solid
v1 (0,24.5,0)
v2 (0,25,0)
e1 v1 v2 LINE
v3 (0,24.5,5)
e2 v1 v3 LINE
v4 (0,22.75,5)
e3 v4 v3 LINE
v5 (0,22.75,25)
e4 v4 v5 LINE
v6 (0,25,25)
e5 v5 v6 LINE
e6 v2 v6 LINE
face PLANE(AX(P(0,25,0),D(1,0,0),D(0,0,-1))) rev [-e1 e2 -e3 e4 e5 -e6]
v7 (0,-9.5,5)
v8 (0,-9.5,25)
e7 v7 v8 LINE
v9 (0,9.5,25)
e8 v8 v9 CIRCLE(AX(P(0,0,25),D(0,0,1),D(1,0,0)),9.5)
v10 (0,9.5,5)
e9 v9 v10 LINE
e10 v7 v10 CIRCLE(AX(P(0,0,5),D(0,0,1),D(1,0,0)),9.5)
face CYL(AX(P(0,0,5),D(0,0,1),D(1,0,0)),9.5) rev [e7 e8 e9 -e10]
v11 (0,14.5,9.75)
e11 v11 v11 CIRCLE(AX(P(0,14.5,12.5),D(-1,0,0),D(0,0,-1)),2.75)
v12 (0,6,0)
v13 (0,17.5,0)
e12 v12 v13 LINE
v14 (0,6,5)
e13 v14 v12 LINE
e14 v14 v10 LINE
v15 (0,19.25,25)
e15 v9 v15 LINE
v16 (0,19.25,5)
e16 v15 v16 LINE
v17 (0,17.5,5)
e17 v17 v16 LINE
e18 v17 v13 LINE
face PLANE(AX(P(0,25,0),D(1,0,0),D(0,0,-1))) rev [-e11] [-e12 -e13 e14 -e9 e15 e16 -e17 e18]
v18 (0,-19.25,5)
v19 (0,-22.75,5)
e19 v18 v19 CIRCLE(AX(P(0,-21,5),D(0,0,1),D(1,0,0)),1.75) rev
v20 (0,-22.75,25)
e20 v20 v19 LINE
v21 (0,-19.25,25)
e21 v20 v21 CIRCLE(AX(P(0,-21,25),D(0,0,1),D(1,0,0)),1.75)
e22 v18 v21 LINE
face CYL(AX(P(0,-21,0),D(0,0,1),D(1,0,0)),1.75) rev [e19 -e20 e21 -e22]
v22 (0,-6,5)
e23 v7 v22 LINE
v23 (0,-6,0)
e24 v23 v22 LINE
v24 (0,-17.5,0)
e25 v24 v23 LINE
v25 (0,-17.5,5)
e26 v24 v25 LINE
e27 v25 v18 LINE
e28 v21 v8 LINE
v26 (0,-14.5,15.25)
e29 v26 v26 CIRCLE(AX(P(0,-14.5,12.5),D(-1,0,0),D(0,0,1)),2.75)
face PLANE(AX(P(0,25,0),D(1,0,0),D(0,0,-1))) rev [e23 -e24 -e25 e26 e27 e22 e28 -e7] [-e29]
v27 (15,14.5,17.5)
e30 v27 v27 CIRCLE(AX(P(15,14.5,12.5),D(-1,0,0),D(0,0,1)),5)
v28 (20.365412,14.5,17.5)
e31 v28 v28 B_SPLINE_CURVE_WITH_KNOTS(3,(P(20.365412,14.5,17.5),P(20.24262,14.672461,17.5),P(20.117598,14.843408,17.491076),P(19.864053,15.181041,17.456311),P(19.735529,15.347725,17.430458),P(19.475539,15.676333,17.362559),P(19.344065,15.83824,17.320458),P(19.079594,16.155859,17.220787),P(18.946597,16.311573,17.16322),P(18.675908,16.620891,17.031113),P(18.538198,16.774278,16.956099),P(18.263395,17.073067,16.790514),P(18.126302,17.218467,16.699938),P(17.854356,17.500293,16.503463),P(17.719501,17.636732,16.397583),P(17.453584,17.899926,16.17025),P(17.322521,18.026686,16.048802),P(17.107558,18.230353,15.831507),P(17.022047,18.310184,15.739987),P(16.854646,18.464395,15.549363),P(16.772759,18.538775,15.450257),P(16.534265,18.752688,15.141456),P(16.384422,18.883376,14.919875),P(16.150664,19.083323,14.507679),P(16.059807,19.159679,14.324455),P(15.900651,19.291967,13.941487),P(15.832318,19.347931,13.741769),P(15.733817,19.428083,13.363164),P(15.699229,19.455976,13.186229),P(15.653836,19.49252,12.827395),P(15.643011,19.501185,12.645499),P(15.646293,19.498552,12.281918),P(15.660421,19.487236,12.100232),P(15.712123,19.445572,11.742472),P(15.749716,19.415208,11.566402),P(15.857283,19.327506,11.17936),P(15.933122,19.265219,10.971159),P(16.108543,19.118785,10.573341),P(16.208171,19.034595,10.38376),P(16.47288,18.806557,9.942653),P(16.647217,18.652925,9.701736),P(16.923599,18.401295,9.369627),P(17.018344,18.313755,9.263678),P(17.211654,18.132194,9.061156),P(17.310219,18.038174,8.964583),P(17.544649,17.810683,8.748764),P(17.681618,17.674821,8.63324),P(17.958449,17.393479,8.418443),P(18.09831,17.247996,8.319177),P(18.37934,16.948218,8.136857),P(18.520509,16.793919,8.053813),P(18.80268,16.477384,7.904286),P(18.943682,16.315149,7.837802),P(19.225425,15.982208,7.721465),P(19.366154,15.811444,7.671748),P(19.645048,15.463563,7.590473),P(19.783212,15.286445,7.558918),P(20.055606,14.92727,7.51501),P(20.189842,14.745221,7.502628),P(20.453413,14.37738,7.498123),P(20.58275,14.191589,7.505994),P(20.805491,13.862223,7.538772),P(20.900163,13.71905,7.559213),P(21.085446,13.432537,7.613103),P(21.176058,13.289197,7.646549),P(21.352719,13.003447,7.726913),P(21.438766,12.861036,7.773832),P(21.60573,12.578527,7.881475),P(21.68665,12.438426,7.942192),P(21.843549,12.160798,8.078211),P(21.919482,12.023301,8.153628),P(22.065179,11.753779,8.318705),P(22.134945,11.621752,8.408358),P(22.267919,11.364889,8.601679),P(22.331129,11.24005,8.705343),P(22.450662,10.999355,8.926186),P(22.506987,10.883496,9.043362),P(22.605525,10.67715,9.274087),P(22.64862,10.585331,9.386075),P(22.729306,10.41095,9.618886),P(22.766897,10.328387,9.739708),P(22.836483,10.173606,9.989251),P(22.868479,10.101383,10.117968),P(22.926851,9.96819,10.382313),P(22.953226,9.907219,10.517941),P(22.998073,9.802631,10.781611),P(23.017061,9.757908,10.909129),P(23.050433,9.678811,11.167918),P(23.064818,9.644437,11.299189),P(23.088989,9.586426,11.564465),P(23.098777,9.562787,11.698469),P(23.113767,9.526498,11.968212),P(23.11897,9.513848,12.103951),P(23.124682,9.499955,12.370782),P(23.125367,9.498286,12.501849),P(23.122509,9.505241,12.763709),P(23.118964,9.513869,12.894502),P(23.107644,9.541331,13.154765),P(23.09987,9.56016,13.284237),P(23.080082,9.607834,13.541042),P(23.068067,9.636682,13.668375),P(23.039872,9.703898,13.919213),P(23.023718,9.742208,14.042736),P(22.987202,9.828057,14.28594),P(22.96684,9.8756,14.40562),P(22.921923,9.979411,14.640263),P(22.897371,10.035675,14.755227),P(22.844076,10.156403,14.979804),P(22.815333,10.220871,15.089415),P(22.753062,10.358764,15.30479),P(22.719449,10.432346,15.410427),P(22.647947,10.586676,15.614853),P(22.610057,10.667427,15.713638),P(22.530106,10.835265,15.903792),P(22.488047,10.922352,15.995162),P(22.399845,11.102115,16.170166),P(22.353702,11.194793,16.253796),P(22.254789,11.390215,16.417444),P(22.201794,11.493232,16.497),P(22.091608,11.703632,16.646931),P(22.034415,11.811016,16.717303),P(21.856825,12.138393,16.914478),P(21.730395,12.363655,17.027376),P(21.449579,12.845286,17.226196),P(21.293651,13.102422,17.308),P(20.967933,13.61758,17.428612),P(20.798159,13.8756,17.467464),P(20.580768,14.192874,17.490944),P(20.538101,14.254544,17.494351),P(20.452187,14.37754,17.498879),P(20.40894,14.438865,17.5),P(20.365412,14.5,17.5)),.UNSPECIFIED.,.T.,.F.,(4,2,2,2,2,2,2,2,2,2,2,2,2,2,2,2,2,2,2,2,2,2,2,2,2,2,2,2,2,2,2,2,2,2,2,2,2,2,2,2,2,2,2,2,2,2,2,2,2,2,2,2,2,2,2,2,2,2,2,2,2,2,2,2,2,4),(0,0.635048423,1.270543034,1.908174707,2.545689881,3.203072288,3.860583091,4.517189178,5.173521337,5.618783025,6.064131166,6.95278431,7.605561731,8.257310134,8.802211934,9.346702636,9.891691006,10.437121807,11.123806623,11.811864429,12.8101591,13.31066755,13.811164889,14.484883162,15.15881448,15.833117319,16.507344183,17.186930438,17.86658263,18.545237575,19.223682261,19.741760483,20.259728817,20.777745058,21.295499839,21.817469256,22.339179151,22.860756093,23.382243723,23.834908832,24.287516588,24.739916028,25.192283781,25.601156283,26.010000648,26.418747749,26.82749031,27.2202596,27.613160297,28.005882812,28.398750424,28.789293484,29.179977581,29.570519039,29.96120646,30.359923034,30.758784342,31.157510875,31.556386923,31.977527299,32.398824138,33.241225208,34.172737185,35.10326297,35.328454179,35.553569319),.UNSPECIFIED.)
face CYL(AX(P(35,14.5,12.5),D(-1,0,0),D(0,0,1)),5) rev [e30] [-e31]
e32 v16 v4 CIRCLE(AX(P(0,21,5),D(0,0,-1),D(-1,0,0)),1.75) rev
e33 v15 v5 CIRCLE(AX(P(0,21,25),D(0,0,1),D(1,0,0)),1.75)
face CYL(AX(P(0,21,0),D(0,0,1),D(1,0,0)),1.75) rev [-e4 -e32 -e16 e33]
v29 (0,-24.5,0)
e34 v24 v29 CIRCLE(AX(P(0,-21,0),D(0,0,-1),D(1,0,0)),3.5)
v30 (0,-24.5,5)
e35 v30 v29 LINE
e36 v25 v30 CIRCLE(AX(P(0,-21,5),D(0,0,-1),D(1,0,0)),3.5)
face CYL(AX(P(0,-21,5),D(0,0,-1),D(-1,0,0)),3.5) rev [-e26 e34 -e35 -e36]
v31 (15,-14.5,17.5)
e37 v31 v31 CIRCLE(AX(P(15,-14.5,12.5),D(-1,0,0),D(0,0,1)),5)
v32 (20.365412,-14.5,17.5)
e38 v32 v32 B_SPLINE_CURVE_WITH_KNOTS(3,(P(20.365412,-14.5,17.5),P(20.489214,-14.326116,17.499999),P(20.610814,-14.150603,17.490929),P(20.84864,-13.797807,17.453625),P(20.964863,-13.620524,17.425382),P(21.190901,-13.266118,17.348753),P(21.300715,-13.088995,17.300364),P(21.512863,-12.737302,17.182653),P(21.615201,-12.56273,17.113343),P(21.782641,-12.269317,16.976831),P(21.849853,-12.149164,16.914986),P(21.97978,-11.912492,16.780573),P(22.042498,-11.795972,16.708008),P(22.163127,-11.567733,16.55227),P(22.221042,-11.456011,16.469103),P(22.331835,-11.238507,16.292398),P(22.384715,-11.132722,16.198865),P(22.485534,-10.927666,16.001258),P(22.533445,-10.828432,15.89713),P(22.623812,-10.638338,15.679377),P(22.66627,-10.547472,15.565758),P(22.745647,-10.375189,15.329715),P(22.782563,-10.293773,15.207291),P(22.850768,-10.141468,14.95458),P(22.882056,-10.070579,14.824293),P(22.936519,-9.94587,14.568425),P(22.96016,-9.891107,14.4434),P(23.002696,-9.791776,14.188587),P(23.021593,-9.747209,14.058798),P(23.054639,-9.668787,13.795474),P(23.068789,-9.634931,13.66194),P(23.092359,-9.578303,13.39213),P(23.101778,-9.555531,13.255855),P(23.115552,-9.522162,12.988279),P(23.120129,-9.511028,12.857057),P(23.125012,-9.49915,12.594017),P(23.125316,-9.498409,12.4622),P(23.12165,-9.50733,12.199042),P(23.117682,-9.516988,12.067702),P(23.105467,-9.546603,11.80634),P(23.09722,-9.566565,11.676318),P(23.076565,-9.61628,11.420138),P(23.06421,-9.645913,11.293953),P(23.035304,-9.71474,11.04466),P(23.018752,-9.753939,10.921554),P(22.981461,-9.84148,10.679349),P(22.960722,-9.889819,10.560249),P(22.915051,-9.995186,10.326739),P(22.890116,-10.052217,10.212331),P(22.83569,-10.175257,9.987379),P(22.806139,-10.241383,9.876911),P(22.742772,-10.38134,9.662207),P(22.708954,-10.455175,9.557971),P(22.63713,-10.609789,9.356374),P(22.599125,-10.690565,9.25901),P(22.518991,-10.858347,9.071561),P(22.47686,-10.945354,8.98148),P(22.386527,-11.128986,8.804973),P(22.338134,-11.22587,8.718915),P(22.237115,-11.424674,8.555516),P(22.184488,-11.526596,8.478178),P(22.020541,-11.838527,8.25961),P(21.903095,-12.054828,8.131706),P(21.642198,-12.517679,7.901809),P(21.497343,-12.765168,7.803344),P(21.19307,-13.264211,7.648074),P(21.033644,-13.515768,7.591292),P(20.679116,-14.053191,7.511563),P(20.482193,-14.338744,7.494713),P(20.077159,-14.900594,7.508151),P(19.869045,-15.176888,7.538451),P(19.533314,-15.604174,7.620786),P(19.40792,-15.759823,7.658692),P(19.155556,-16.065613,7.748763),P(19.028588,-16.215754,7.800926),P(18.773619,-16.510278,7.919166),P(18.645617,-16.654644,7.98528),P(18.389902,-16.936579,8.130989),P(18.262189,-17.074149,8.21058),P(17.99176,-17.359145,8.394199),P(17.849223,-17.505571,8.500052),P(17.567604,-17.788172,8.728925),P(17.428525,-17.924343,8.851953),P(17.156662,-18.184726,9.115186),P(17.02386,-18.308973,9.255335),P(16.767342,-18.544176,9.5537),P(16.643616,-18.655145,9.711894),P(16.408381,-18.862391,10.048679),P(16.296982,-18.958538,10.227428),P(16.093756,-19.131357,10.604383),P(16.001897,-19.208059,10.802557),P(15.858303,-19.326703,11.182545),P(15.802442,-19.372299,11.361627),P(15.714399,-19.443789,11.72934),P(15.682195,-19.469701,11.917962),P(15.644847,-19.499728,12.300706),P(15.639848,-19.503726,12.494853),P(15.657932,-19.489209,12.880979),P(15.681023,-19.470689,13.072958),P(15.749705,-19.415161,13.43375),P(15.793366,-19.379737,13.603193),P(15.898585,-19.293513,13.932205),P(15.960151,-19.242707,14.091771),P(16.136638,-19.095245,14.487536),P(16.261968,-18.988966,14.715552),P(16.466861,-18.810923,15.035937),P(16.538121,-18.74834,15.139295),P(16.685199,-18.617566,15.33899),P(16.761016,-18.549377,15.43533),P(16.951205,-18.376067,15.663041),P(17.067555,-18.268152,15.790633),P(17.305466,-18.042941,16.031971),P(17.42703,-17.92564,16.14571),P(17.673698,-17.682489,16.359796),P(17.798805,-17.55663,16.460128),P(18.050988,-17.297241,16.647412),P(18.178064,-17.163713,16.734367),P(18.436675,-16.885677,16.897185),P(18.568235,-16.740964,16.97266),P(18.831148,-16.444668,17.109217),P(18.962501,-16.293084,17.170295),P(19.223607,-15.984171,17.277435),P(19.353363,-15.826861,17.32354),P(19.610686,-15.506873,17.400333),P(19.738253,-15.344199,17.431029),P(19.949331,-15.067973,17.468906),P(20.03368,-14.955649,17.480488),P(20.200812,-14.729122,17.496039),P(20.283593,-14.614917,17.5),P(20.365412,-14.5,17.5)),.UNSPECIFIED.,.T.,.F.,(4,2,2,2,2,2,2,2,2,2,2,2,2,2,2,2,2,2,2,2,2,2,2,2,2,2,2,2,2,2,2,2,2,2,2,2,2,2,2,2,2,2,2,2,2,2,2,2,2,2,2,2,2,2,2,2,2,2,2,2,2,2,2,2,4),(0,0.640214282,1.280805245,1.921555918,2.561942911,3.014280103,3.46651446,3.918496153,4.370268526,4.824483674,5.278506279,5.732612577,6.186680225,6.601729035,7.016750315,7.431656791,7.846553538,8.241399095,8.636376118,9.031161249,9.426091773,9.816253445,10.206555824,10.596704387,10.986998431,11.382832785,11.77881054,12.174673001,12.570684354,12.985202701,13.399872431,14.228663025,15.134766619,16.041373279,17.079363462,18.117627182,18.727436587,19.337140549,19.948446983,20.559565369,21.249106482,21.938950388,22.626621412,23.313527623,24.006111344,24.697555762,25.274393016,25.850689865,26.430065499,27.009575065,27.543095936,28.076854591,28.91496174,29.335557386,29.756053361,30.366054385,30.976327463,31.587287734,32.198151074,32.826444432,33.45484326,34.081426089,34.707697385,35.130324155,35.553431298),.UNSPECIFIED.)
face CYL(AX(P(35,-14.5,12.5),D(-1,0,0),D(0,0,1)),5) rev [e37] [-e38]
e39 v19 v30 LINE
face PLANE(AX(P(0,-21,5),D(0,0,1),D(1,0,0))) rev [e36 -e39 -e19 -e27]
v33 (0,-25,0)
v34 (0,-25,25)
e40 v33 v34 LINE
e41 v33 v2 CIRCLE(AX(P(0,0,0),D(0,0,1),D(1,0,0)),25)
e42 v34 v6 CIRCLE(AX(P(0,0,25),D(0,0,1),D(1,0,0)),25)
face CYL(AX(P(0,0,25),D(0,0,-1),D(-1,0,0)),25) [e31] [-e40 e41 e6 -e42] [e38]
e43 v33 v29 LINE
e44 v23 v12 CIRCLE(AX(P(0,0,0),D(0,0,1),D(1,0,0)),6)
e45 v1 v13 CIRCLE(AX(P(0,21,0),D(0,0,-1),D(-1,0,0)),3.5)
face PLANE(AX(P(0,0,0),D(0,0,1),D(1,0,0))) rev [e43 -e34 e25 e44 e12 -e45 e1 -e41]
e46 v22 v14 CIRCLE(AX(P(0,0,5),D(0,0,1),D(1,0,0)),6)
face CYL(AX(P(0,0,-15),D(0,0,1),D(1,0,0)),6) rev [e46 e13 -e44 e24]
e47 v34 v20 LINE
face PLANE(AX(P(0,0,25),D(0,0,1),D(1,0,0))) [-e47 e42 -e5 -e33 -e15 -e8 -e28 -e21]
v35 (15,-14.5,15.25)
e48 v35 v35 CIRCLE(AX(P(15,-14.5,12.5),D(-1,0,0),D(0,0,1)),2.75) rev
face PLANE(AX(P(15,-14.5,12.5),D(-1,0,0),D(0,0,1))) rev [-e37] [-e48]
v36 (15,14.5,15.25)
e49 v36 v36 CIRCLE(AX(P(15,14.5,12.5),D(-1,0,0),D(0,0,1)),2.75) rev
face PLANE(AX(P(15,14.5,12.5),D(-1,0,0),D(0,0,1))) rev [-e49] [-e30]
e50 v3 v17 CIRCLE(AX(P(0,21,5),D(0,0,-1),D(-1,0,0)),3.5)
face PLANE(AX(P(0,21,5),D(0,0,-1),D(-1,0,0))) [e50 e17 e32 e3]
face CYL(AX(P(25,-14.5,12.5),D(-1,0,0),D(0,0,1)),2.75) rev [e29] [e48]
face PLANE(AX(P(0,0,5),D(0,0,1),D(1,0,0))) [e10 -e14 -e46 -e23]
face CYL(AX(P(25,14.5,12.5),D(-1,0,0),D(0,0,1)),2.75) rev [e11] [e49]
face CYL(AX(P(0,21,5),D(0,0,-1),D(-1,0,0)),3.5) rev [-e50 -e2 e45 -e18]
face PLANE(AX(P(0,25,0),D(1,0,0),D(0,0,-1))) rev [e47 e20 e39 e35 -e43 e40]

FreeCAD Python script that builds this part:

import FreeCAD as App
import Part
import Sketcher
Q = App.Units.Quantity

doc = App.newDocument("Part")
body = doc.addObject("PartDesign::Body", "Body")

# Sketch on XY plane
sketch1 = doc.addObject("Sketcher::SketchObject", "Sketch")
body.addObject(sketch1)
sketch1.AttachmentSupport = (doc.XY_Plane, [""])
sketch1.MapMode = "FlatFace"
sketch1.addGeometry(Part.Circle(App.Vector(0, 0, 0), App.Vector(0, 0, 1), 25), False)
sketch1.addConstraint([
    Sketcher.Constraint("Coincident", 0, 3, -1, 1),
    Sketcher.Constraint("Diameter", 0, Q("50 mm")),
])
pad1 = doc.addObject("PartDesign::Pad", "Pad")
body.addObject(pad1)
pad1.Profile = sketch1
pad1.Length = 25

# Sketch on XY plane
sketch2 = doc.addObject("Sketcher::SketchObject", "Sketch001")
body.addObject(sketch2)
sketch2.AttachmentSupport = (doc.XY_Plane, [""])
sketch2.MapMode = "FlatFace"
sketch2.AttachmentOffset = App.Placement(App.Vector(0, 0, 25), App.Rotation())
sketch2.addGeometry(Part.Circle(App.Vector(0, 0, 0), App.Vector(0, 0, 1), 10), False)
sketch2.addConstraint([
    Sketcher.Constraint("Coincident", 0, 3, -1, 1),
    Sketcher.Constraint("Diameter", 0, Q("19 mm")),
])
pocket1 = doc.addObject("PartDesign::Pocket", "Pocket")
body.addObject(pocket1)
pocket1.Profile = sketch2
pocket1.Length = 20

# Sketch on XY plane
sketch3 = doc.addObject("Sketcher::SketchObject", "Sketch002")
body.addObject(sketch3)
sketch3.AttachmentSupport = (doc.XY_Plane, [""])
sketch3.MapMode = "FlatFace"
sketch3.AttachmentOffset = App.Placement(App.Vector(0, 0, 5), App.Rotation())
sketch3.addGeometry(Part.Circle(App.Vector(0, 0, 0), App.Vector(0, 0, 1), 6), False)
sketch3.addConstraint([
    Sketcher.Constraint("Coincident", 0, 3, -1, 1),
    Sketcher.Constraint("Diameter", 0, Q("12 mm")),
])
pocket2 = doc.addObject("PartDesign::Pocket", "Pocket001")
body.addObject(pocket2)
pocket2.Profile = sketch3
pocket2.Length = 20

# Sketch on XY plane
sketch4 = doc.addObject("Sketcher::SketchObject", "Sketch003")
body.addObject(sketch4)
sketch4.AttachmentSupport = (doc.XY_Plane, [""])
sketch4.MapMode = "FlatFace"
sketch4.AttachmentOffset = App.Placement(App.Vector(0, 0, 25), App.Rotation())
sketch4.addGeometry([
    Part.LineSegment(App.Vector(-32, 25, 0), App.Vector(-32, -25, 0)),
    Part.LineSegment(App.Vector(-32, -25, 0), App.Vector(0, -25, 0)),
    Part.LineSegment(App.Vector(0, -25, 0), App.Vector(0, 25, 0)),
    Part.LineSegment(App.Vector(0, 25, 0), App.Vector(-32, 25, 0)),
], False)
sketch4.addConstraint([
    Sketcher.Constraint("Coincident", 0, 2, 1, 1),
    Sketcher.Constraint("Coincident", 1, 2, 2, 1),
    Sketcher.Constraint("Coincident", 2, 2, 3, 1),
    Sketcher.Constraint("Coincident", 3, 2, 0, 1),
    Sketcher.Constraint("Vertical", 0),
    Sketcher.Constraint("Horizontal", 1),
    Sketcher.Constraint("Vertical", 2),
    Sketcher.Constraint("Horizontal", 3),
    Sketcher.Constraint("Symmetric", 1, 2, 2, 2, -1, 1),
    Sketcher.Constraint("DistanceY", 0, 2, 0, 1, Q("50 mm")),
    Sketcher.Constraint("DistanceX", 1, 1, 1, 2, Q("31.902568 mm")),
])
pocket3 = doc.addObject("PartDesign::Pocket", "Pocket002")
body.addObject(pocket3)
pocket3.Profile = sketch4
pocket3.Type = "ThroughAll"

# Sketch on YZ plane
sketch5 = doc.addObject("Sketcher::SketchObject", "Sketch004")
body.addObject(sketch5)
sketch5.AttachmentSupport = (doc.YZ_Plane, [""])
sketch5.MapMode = "FlatFace"
sketch5.addGeometry([
    Part.Circle(App.Vector(-14.5, 12.5, 0), App.Vector(0, 0, 1), 2.8),
    Part.Circle(App.Vector(14.5, 12.5, 0), App.Vector(0, 0, 1), 2.8),
], False)
sketch5.addConstraint([
    Sketcher.Constraint("Equal", 0, 1),
    Sketcher.Constraint("Symmetric", 0, 3, 1, 3, -2),
    Sketcher.Constraint("Diameter", 0, Q("5.5 mm")),
    Sketcher.Constraint("DistanceX", 0, 3, 1, 3, Q("29 mm")),
    Sketcher.Constraint("DistanceY", -1, 1, 0, 3, Q("12.5 mm")),
])
pocket4 = doc.addObject("PartDesign::Pocket", "Pocket003")
body.addObject(pocket4)
pocket4.Profile = sketch5
pocket4.Type = "ThroughAll"
pocket4.Reversed = True

# Sketch on YZ plane
sketch6 = doc.addObject("Sketcher::SketchObject", "Sketch005")
body.addObject(sketch6)
sketch6.AttachmentSupport = (doc.YZ_Plane, [""])
sketch6.MapMode = "FlatFace"
sketch6.AttachmentOffset = App.Placement(App.Vector(0, 0, 15), App.Rotation())
sketch6.addGeometry([
    Part.Circle(App.Vector(14, 12, 0), App.Vector(0, 0, 1), 5),
    Part.Circle(App.Vector(-14, 12, 0), App.Vector(0, 0, 1), 5),
], False)
sketch6.addConstraint([
    Sketcher.Constraint("Equal", 0, 1),
    Sketcher.Constraint("Symmetric", 0, 3, 1, 3, -2),
    Sketcher.Constraint("Diameter", 0, Q("10 mm")),
    Sketcher.Constraint("DistanceX", 1, 3, 0, 3, Q("29 mm")),
    Sketcher.Constraint("DistanceY", -1, 1, 0, 3, Q("12.5 mm")),
])
pocket5 = doc.addObject("PartDesign::Pocket", "Pocket004")
body.addObject(pocket5)
pocket5.Profile = sketch6
pocket5.Length = 20
pocket5.Reversed = True

# Sketch on XY plane
sketch7 = doc.addObject("Sketcher::SketchObject", "Sketch006")
body.addObject(sketch7)
sketch7.AttachmentSupport = (doc.XY_Plane, [""])
sketch7.MapMode = "FlatFace"
sketch7.AttachmentOffset = App.Placement(App.Vector(0, 0, 25), App.Rotation())
sketch7.addGeometry([
    Part.Circle(App.Vector(0, 21, 0), App.Vector(0, 0, 1), 1.8),
    Part.Circle(App.Vector(0, -21, 0), App.Vector(0, 0, 1), 1.8),
], False)
sketch7.addConstraint([
    Sketcher.Constraint("Equal", 0, 1),
    Sketcher.Constraint("Symmetric", 0, 3, 1, 3, -1, 1),
    Sketcher.Constraint("PointOnObject", 0, 3, -2),
    Sketcher.Constraint("Diameter", 0, Q("3.5 mm")),
    Sketcher.Constraint("DistanceY", -1, 1, 0, 3, Q("21 mm")),
])
pocket6 = doc.addObject("PartDesign::Pocket", "Pocket005")
body.addObject(pocket6)
pocket6.Profile = sketch7
pocket6.Type = "ThroughAll"

# Sketch on XY plane
sketch8 = doc.addObject("Sketcher::SketchObject", "Sketch007")
body.addObject(sketch8)
sketch8.AttachmentSupport = (doc.XY_Plane, [""])
sketch8.MapMode = "FlatFace"
sketch8.addGeometry([
    Part.Circle(App.Vector(0, 21, 0), App.Vector(0, 0, 1), 3.5),
    Part.Circle(App.Vector(0, -21, 0), App.Vector(0, 0, 1), 3.5),
], False)
sketch8.addConstraint([
    Sketcher.Constraint("Equal", 0, 1),
    Sketcher.Constraint("Symmetric", 0, 3, 1, 3, -1, 1),
    Sketcher.Constraint("PointOnObject", 0, 3, -2),
    Sketcher.Constraint("Diameter", 0, Q("7 mm")),
    Sketcher.Constraint("DistanceY", -1, 1, 0, 3, Q("21 mm")),
])
pocket7 = doc.addObject("PartDesign::Pocket", "Pocket006")
body.addObject(pocket7)
pocket7.Profile = sketch8
pocket7.Length = 5
pocket7.Reversed = True

doc.recompute()
